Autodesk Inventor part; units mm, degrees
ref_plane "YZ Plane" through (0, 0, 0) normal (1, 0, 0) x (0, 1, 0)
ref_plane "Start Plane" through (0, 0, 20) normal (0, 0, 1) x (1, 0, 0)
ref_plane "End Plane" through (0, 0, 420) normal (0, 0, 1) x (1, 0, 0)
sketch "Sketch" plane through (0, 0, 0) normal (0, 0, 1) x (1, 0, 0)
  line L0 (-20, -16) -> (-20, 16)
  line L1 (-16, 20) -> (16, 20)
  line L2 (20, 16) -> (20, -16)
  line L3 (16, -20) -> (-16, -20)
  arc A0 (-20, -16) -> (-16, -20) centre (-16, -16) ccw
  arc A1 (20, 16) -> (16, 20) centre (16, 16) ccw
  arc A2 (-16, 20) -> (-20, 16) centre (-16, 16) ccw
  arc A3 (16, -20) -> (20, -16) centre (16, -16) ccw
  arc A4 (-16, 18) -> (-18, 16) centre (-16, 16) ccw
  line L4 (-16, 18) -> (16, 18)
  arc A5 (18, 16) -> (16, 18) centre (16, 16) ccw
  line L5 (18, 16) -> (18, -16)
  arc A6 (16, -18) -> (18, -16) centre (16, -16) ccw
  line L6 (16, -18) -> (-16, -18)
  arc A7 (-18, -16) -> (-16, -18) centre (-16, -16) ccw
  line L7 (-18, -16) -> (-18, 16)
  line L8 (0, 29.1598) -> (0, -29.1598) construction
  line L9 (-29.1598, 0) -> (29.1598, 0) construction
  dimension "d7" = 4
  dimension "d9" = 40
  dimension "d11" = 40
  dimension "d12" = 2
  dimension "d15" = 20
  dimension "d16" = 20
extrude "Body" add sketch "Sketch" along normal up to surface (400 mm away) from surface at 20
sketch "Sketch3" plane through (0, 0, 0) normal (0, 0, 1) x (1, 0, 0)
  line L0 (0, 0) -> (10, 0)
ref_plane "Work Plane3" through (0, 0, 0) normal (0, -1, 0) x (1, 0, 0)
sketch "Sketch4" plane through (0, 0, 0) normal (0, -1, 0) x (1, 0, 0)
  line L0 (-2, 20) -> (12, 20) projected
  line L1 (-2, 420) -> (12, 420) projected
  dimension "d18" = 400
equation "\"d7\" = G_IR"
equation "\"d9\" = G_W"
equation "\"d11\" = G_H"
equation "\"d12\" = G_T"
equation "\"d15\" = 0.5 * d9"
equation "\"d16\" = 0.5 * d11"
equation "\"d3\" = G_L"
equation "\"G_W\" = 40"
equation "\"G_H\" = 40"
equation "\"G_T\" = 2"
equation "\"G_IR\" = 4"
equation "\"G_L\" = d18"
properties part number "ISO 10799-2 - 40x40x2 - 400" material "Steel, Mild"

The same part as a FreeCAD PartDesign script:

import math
import FreeCAD as App
import Part
import Sketcher
from FreeCAD import Vector
Q = App.Units.Quantity

doc = App.newDocument("Part")
body = doc.addObject("PartDesign::Body", "Body")

sketch1 = body.newObject("Sketcher::SketchObject", "Sketch")
sketch1.AttachmentSupport = (doc.getObject("XY_Plane"), [""])
sketch1.MapMode = "FlatFace"
sketch1.AttachmentOffset = App.Placement(Vector(0, 0, 20), App.Rotation())
sketch1.addGeometry([
    Part.LineSegment(Vector(-20, 16, 0), Vector(-20, -16, 0)),
    Part.ArcOfCircle(Part.Circle(Vector(-16, -16, 0), Vector(0, 0, 1), 4), math.radians(180), math.radians(270)),
    Part.LineSegment(Vector(-16, -20, 0), Vector(16, -20, 0)),
    Part.ArcOfCircle(Part.Circle(Vector(16, -16, 0), Vector(0, 0, 1), 4), math.radians(-90), math.radians(0)),
    Part.LineSegment(Vector(20, -16, 0), Vector(20, 16, 0)),
    Part.ArcOfCircle(Part.Circle(Vector(16, 16, 0), Vector(0, 0, 1), 4), math.radians(0), math.radians(90)),
    Part.LineSegment(Vector(16, 20, 0), Vector(-16, 20, 0)),
    Part.ArcOfCircle(Part.Circle(Vector(-16, 16, 0), Vector(0, 0, 1), 4), math.radians(90), math.radians(180)),
    Part.ArcOfCircle(Part.Circle(Vector(-16, 16, 0), Vector(0, 0, 1), 2), math.radians(90), math.radians(180)),
    Part.LineSegment(Vector(-16, 18, 0), Vector(16, 18, 0)),
    Part.ArcOfCircle(Part.Circle(Vector(16, 16, 0), Vector(0, 0, 1), 2), math.radians(0), math.radians(90)),
    Part.LineSegment(Vector(18, 16, 0), Vector(18, -16, 0)),
    Part.ArcOfCircle(Part.Circle(Vector(16, -16, 0), Vector(0, 0, 1), 2), math.radians(-90), math.radians(0)),
    Part.LineSegment(Vector(16, -18, 0), Vector(-16, -18, 0)),
    Part.ArcOfCircle(Part.Circle(Vector(-16, -16, 0), Vector(0, 0, 1), 2), math.radians(180), math.radians(270)),
    Part.LineSegment(Vector(-18, -16, 0), Vector(-18, 16, 0)),
], False)
sketch1.addConstraint([
    Sketcher.Constraint("Tangent", 0, 2, 1, 1),
    Sketcher.Constraint("Tangent", 1, 2, 2, 1),
    Sketcher.Constraint("Tangent", 2, 2, 3, 1),
    Sketcher.Constraint("Tangent", 3, 2, 4, 1),
    Sketcher.Constraint("Tangent", 4, 2, 5, 1),
    Sketcher.Constraint("Tangent", 5, 2, 6, 1),
    Sketcher.Constraint("Tangent", 6, 2, 7, 1),
    Sketcher.Constraint("Tangent", 7, 2, 0, 1),
    Sketcher.Constraint("Tangent", 8, 1, 9, 1),
    Sketcher.Constraint("Tangent", 9, 2, 10, 2),
    Sketcher.Constraint("Tangent", 10, 1, 11, 1),
    Sketcher.Constraint("Tangent", 11, 2, 12, 2),
    Sketcher.Constraint("Tangent", 12, 1, 13, 1),
    Sketcher.Constraint("Tangent", 13, 2, 14, 2),
    Sketcher.Constraint("Tangent", 14, 1, 15, 1),
    Sketcher.Constraint("Tangent", 15, 2, 8, 2),
    Sketcher.Constraint("Vertical", 0),
    Sketcher.Constraint("Horizontal", 2),
    Sketcher.Constraint("Vertical", 4),
    Sketcher.Constraint("Horizontal", 6),
    Sketcher.Constraint("Horizontal", 9),
    Sketcher.Constraint("Vertical", 11),
    Sketcher.Constraint("Horizontal", 13),
    Sketcher.Constraint("Vertical", 15),
    Sketcher.Constraint("Coincident", 8, 3, 7, 3),
    Sketcher.Constraint("Coincident", 10, 3, 5, 3),
    Sketcher.Constraint("Coincident", 12, 3, 3, 3),
    Sketcher.Constraint("Equal", 1, 3),
    Sketcher.Constraint("Equal", 3, 5),
    Sketcher.Constraint("Equal", 5, 7),
    Sketcher.Constraint("Equal", 12, 14),
    Sketcher.Constraint("Symmetric", 1, 3, 5, 3, -1, 1),
    Sketcher.Constraint("Equal", 13, 0),
    Sketcher.Constraint("Radius", 1, Q("4 mm")),
    Sketcher.Constraint("Radius", 8, Q("2 mm")),
    Sketcher.Constraint("DistanceX", 0, 2, -1, 1, Q("20 mm")),
])
pad1 = body.newObject("PartDesign::Pad", "Pad")
pad1.Profile = sketch1
pad1.Length = 400

doc.recompute()
